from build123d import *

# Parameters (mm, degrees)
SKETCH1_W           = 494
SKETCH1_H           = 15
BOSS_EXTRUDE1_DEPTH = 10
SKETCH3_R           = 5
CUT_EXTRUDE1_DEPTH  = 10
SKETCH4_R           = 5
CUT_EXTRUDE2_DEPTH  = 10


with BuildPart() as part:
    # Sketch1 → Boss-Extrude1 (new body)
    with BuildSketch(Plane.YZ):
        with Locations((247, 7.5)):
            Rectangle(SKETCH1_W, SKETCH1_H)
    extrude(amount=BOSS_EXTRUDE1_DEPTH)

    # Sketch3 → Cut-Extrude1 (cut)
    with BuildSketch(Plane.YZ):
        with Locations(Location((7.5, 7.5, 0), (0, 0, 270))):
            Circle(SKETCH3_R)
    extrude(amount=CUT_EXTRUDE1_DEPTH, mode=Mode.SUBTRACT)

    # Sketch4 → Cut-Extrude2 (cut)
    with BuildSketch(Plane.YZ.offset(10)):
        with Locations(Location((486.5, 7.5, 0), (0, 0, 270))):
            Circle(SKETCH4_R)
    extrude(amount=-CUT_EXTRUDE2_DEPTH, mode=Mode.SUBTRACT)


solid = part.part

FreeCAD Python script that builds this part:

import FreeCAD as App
import Part
import Sketcher
Q = App.Units.Quantity


def add_polygon(sketch, points):
    """Adds a closed chain of lines whose ends are joined by coincident constraints."""
    first, n = sketch.GeometryCount, len(points)
    for a, b in zip(points, points[1:] + points[:1]):
        sketch.addGeometry(Part.LineSegment(App.Vector(*a, 0), App.Vector(*b, 0)), False)
    for i in range(n):
        sketch.addConstraint(Sketcher.Constraint("Coincident", first + i, 2, first + (i + 1) % n, 1))

doc = App.newDocument("Part")
body = doc.addObject("PartDesign::Body", "Body")

sketch1 = body.newObject("Sketcher::SketchObject", "Sketch")
sketch1.AttachmentSupport = (doc.getObject("YZ_Plane"), [""])
sketch1.MapMode = "FlatFace"
add_polygon(sketch1, [(0, 15), (0, 0), (494, 0), (494, 15)])
sketch1.addConstraint(Sketcher.Constraint("Vertical", 0))
sketch1.addConstraint(Sketcher.Constraint("Horizontal", 1))
sketch1.addConstraint(Sketcher.Constraint("Vertical", 2))
sketch1.addConstraint(Sketcher.Constraint("Horizontal", 3))
sketch1.addConstraint(Sketcher.Constraint("Coincident", 0, 2, -1, 1))
sketch1.addConstraint(Sketcher.Constraint("DistanceX", 1, 1, 1, 2, Q("494 mm")))
sketch1.addConstraint(Sketcher.Constraint("DistanceY", 0, 2, 0, 1, Q("15 mm")))
pad1 = body.newObject("PartDesign::Pad", "Pad")
pad1.Profile = sketch1
pad1.Length = 10

sketch2 = body.newObject("Sketcher::SketchObject", "Sketch001")
sketch2.AttachmentSupport = (doc.getObject("YZ_Plane"), [""])
sketch2.MapMode = "FlatFace"
sketch2.addGeometry(Part.Circle(App.Vector(7.5, 7.5, 0), App.Vector(0, 0, 1), 5), False)
sketch2.addConstraint(Sketcher.Constraint("Diameter", 0, Q("10 mm")))
sketch2.addConstraint(Sketcher.Constraint("DistanceX", -1, 1, 0, 3, Q("7.5 mm")))
sketch2.addConstraint(Sketcher.Constraint("DistanceY", -1, 1, 0, 3, Q("7.5 mm")))
pocket1 = body.newObject("PartDesign::Pocket", "Pocket")
pocket1.Profile = sketch2
pocket1.Length = 10
pocket1.Reversed = True

sketch3 = body.newObject("Sketcher::SketchObject", "Sketch002")
sketch3.AttachmentSupport = (doc.getObject("YZ_Plane"), [""])
sketch3.MapMode = "FlatFace"
sketch3.AttachmentOffset = App.Placement(App.Vector(0, 0, 10), App.Rotation())
sketch3.addGeometry(Part.Circle(App.Vector(486.5, 7.5, 0), App.Vector(0, 0, 1), 5), False)
sketch3.addConstraint(Sketcher.Constraint("Diameter", 0, Q("10 mm")))
sketch3.addConstraint(Sketcher.Constraint("DistanceX", -1, 1, 0, 3, Q("486.5 mm")))
sketch3.addConstraint(Sketcher.Constraint("DistanceY", -1, 1, 0, 3, Q("7.5 mm")))
pocket2 = body.newObject("PartDesign::Pocket", "Pocket001")
pocket2.Profile = sketch3
pocket2.Length = 10

doc.recompute()
